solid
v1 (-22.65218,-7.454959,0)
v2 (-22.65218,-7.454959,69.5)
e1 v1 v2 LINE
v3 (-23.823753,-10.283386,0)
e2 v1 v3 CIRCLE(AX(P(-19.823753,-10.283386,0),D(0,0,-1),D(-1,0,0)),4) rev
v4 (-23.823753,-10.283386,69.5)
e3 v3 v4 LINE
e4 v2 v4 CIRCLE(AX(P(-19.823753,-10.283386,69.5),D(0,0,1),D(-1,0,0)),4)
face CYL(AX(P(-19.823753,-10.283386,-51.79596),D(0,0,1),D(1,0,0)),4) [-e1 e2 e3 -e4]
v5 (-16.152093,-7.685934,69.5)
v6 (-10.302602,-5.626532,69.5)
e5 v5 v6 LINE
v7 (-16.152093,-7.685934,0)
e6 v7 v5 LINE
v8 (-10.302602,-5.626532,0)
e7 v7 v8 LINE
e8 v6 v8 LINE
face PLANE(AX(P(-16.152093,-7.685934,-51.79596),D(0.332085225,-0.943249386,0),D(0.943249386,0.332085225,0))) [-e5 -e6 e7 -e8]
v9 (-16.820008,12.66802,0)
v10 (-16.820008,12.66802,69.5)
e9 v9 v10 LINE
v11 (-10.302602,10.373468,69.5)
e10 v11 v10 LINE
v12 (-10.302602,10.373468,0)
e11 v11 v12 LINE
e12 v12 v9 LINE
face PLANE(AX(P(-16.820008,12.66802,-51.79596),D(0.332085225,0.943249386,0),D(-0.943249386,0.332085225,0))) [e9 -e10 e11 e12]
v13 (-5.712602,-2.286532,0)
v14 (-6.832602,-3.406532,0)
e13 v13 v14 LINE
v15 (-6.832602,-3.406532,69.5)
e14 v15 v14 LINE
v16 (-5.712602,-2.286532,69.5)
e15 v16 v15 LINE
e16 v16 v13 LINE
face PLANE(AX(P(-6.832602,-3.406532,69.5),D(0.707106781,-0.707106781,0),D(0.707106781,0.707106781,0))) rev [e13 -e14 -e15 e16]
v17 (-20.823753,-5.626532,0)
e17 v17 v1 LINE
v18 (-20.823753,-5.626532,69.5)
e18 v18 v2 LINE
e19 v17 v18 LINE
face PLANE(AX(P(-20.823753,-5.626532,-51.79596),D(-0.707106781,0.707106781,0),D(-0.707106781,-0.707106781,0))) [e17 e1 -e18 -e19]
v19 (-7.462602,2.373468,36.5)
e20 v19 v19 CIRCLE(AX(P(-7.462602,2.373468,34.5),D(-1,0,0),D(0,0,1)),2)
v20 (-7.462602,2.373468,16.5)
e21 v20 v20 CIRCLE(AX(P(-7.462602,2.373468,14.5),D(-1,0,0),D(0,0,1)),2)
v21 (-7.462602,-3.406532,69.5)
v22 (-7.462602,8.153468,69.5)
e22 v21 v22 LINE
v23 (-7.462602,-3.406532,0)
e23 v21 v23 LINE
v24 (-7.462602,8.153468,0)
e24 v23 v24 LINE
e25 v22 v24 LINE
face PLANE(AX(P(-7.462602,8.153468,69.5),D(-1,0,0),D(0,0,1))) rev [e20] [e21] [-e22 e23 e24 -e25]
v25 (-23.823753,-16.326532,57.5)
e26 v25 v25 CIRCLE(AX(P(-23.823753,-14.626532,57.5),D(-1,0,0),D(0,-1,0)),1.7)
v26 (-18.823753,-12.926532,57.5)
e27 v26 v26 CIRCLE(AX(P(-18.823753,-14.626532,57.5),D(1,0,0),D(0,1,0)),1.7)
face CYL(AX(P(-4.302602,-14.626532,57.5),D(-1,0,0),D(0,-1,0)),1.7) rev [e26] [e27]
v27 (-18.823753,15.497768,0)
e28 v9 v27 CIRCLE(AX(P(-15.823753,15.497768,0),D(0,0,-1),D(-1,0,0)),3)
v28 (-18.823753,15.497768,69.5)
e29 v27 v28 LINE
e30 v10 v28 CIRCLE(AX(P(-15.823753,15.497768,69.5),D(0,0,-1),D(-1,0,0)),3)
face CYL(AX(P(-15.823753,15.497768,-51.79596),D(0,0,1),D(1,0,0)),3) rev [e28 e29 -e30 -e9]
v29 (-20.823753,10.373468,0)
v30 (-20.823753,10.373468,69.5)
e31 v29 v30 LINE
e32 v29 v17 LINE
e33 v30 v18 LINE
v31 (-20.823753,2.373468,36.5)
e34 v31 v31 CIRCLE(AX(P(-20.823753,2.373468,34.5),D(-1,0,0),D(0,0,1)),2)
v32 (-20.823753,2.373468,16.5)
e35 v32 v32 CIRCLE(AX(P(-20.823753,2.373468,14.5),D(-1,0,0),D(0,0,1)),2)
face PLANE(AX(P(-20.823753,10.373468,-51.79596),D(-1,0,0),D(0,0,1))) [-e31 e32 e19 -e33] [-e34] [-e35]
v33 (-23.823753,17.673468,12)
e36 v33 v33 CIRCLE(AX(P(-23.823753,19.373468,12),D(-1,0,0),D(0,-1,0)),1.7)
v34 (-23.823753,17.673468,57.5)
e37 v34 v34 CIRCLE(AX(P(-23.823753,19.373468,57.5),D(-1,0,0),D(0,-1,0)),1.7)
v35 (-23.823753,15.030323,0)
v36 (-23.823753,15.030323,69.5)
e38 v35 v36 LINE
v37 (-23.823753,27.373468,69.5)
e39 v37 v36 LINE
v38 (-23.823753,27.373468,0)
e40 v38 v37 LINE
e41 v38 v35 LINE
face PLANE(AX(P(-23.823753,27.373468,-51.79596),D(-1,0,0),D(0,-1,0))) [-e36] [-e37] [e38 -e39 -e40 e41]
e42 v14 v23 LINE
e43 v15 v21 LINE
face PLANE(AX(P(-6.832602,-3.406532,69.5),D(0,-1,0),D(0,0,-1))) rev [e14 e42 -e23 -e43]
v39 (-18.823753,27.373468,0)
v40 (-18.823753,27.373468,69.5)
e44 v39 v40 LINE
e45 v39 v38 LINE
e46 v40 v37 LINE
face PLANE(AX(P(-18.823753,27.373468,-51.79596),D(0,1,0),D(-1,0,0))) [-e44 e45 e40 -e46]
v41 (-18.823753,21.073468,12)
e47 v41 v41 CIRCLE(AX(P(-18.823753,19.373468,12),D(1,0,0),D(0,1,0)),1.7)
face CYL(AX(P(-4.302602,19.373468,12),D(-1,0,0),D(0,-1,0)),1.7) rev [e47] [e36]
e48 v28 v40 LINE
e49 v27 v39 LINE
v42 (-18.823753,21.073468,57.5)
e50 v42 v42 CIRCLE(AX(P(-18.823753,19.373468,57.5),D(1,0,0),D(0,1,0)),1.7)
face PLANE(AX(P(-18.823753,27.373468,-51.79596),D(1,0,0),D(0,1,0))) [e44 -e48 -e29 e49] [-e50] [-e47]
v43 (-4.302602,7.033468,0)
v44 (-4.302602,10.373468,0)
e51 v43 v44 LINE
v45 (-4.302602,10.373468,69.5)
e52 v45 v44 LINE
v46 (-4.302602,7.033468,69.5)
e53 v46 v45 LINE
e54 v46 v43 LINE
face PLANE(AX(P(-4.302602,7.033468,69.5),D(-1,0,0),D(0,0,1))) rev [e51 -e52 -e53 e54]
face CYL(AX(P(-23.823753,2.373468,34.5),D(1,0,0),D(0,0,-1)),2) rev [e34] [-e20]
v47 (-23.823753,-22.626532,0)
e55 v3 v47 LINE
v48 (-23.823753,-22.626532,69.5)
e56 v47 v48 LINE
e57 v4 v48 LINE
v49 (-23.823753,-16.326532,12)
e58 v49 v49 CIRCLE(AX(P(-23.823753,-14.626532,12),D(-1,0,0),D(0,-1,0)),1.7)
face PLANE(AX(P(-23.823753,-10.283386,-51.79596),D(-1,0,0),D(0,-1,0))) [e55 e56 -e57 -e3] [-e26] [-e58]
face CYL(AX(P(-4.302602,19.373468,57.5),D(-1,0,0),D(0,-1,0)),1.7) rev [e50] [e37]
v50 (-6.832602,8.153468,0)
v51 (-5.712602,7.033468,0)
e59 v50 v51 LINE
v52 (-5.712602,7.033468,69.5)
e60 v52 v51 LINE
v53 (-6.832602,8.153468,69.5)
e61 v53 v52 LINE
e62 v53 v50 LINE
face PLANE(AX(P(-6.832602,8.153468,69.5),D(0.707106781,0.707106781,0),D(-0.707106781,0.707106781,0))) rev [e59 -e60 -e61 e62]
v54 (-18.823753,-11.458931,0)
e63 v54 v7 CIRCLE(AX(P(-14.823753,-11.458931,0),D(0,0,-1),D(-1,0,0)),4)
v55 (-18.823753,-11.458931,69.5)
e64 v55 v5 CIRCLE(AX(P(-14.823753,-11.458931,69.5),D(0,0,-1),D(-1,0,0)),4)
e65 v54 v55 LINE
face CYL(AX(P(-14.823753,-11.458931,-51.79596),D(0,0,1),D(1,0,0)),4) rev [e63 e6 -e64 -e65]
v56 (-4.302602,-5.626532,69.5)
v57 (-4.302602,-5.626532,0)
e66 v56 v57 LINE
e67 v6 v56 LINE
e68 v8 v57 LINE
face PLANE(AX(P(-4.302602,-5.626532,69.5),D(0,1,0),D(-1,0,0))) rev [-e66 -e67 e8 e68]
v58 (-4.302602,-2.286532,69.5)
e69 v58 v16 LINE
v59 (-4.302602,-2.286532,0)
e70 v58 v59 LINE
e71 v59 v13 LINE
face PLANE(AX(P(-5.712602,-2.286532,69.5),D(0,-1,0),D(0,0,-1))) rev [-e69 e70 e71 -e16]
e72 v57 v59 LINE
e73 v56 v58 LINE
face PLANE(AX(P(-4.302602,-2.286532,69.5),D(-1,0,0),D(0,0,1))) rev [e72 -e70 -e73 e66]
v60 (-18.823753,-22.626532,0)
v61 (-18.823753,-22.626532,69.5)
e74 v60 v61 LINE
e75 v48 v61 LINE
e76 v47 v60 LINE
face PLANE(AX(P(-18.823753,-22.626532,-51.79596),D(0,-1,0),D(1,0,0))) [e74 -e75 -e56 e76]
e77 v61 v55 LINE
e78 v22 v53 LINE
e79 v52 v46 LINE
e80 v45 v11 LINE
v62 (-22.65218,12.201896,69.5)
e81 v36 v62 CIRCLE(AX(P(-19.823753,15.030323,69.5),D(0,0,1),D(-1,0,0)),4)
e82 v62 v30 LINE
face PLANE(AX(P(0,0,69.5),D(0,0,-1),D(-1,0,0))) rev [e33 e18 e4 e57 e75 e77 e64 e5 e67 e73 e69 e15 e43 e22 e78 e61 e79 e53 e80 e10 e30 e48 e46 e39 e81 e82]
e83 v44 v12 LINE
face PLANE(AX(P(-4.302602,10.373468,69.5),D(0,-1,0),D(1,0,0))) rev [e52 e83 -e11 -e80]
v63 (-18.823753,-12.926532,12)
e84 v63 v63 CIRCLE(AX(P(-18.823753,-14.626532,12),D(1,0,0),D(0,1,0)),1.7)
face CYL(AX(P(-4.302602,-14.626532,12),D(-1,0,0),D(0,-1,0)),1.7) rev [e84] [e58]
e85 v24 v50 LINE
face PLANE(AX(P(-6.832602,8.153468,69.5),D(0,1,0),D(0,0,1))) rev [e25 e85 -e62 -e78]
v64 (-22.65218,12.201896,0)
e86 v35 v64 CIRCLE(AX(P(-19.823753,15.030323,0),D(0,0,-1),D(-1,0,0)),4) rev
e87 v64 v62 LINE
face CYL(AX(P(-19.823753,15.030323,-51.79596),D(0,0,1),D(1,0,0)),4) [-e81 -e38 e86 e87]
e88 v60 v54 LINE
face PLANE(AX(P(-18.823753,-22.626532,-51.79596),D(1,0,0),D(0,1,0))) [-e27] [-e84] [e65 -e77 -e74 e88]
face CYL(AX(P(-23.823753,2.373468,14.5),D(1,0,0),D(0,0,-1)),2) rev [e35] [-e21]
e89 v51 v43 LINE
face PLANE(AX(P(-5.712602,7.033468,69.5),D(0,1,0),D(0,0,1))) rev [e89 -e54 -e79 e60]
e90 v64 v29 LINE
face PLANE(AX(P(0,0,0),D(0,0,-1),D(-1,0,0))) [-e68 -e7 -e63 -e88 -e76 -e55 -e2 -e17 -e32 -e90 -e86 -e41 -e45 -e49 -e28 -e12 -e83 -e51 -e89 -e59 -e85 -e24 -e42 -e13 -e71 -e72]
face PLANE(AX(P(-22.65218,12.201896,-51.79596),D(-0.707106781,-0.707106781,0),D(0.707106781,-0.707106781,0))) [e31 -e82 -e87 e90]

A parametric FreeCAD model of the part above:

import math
import FreeCAD as App
import Part
import Sketcher

V = App.Vector
Q = App.Units.Quantity


def add_polygon(sketch, points):
    """Adds a closed chain of lines whose ends are joined by coincident constraints."""
    first, n = sketch.GeometryCount, len(points)
    for a, b in zip(points, points[1:] + points[:1]):
        sketch.addGeometry(Part.LineSegment(App.Vector(*a, 0), App.Vector(*b, 0)), False)
    for i in range(n):
        sketch.addConstraint(Sketcher.Constraint("Coincident", first + i, 2, first + (i + 1) % n, 1))

doc = App.newDocument("Part")
body = doc.addObject("PartDesign::Body", "Body")

# Sketch on XY plane
sketch1 = body.newObject("Sketcher::SketchObject", "Sketch")
sketch1.AttachmentSupport = (doc.getObject("XY_Plane"), [""])
sketch1.MapMode = "FlatFace"
add_polygon(sketch1, [(-4.302602, 10.373468), (-10.302602, 10.373468), (-10.302602, -5.626532), (-4.302602, -5.626532), (-4.302602, -2.286532), (-5.712602, -2.286532), (-6.832602, -3.406532), (-7.462602, -3.406532), (-7.462602, 8.153468), (-6.832602, 8.153468), (-5.712602, 7.033468), (-4.302602, 7.033468)])  # lines 0-11
sketch1.addConstraint([
    Sketcher.Constraint("Horizontal", 0),
    Sketcher.Constraint("Vertical", 1),
    Sketcher.Constraint("Horizontal", 2),
    Sketcher.Constraint("Vertical", 3),
    Sketcher.Constraint("Horizontal", 4),
    Sketcher.Constraint("Horizontal", 6),
    Sketcher.Constraint("Vertical", 7),
    Sketcher.Constraint("Horizontal", 8),
    Sketcher.Constraint("Horizontal", 10),
    Sketcher.Constraint("Vertical", 11),
    Sketcher.Constraint("Perpendicular", 5, 9),
    Sketcher.Constraint("Vertical", 5, 2, 8, 2),
    Sketcher.Constraint("Vertical", 4, 2, 9, 2),
    Sketcher.Constraint("Vertical", 3, 2, 10, 2),
    Sketcher.Constraint("Equal", 3, 11),
    Sketcher.Constraint("Equal", 5, 9),
    Sketcher.Constraint("DistanceX", 0, 2, 0, 1, Q("6 mm")),
    Sketcher.Constraint("DistanceY", 1, 2, 1, 1, Q("16 mm")),
    Sketcher.Constraint("DistanceX", 4, 2, 4, 1, Q("1.41 mm")),
    Sketcher.Constraint("DistanceX", 6, 2, 6, 1, Q("0.63 mm")),
    Sketcher.Constraint("DistanceY", 3, 1, 3, 2, Q("3.34 mm")),
    Sketcher.Constraint("DistanceY", 7, 1, 7, 2, Q("11.56 mm")),
    Sketcher.Constraint("DistanceY", -1, 1, 0, 2, Q("10.373468 mm")),
    Sketcher.Constraint("DistanceX", 0, 2, -1, 1, Q("10.302602 mm")),
])
pad1 = body.newObject("PartDesign::Pad", "Pad")
pad1.Profile = sketch1
pad1.Length = 69.5

# Sketch on XY plane
sketch2 = body.newObject("Sketcher::SketchObject", "Sketch001")
sketch2.AttachmentSupport = (doc.getObject("XY_Plane"), [""])
sketch2.MapMode = "FlatFace"
sketch2.AttachmentOffset = App.Placement(V(0, 0, 69.5), App.Rotation())
sketch2.addGeometry([
    Part.LineSegment(V(-18.823753, 27.373468, 0), V(-23.823753, 27.373468, 0)),  # 0
    Part.LineSegment(V(-23.823753, 27.373468, 0), V(-23.823753, 15.030323, 0)),  # 1
    Part.ArcOfCircle(Part.Circle(V(-19.823753, 15.030323, 0), V(0, 0, 1), 4), math.radians(-180), math.radians(-135)),  # 2
    Part.LineSegment(V(-22.65218, 12.201896, 0), V(-20.823753, 10.373468, 0)),  # 3
    Part.LineSegment(V(-20.823753, 10.373468, 0), V(-20.823753, -5.626532, 0)),  # 4
    Part.LineSegment(V(-20.823753, -5.626532, 0), V(-22.65218, -7.454959, 0)),  # 5
    Part.ArcOfCircle(Part.Circle(V(-19.823753, -10.283386, 0), V(0, 0, 1), 4), math.radians(135), math.radians(180)),  # 6
    Part.LineSegment(V(-23.823753, -10.283386, 0), V(-23.823753, -22.626532, 0)),  # 7
    Part.LineSegment(V(-23.823753, -22.626532, 0), V(-18.823753, -22.626532, 0)),  # 8
    Part.LineSegment(V(-18.823753, -22.626532, 0), V(-18.823753, -11.458931, 0)),  # 9
    Part.ArcOfCircle(Part.Circle(V(-14.823753, -11.458931, 0), V(0, 0, 1), 4), math.radians(109.395389), math.radians(180)),  # 10
    Part.LineSegment(V(-16.152093, -7.685934, 0), V(-10.302602, -5.626532, 0)),  # 11
    Part.LineSegment(V(-10.302602, -5.626532, 0), V(-10.302602, 10.373468, 0)),  # 12
    Part.LineSegment(V(-10.302602, 10.373468, 0), V(-16.820008, 12.66802, 0)),  # 13
    Part.ArcOfCircle(Part.Circle(V(-15.823753, 15.497768, 0), V(0, 0, 1), 3), math.radians(180), math.radians(250.604611)),  # 14
    Part.LineSegment(V(-18.823753, 15.497768, 0), V(-18.823753, 27.373468, 0)),  # 15
], False)
sketch2.addConstraint([
    Sketcher.Constraint("Coincident", 0, 2, 1, 1),
    Sketcher.Constraint("Tangent", 1, 2, 2, 1),
    Sketcher.Constraint("Tangent", 2, 2, 3, 1),
    Sketcher.Constraint("Coincident", 3, 2, 4, 1),
    Sketcher.Constraint("Coincident", 4, 2, 5, 1),
    Sketcher.Constraint("Tangent", 5, 2, 6, 1),
    Sketcher.Constraint("Tangent", 6, 2, 7, 1),
    Sketcher.Constraint("Coincident", 7, 2, 8, 1),
    Sketcher.Constraint("Coincident", 8, 2, 9, 1),
    Sketcher.Constraint("Tangent", 9, 2, 10, 2),
    Sketcher.Constraint("Tangent", 10, 1, 11, 1),
    Sketcher.Constraint("Coincident", 11, 2, 12, 1),
    Sketcher.Constraint("Coincident", 12, 2, 13, 1),
    Sketcher.Constraint("Tangent", 13, 2, 14, 2),
    Sketcher.Constraint("Tangent", 14, 1, 15, 1),
    Sketcher.Constraint("Coincident", 15, 2, 0, 1),
    Sketcher.Constraint("Horizontal", 0),
    Sketcher.Constraint("Vertical", 1),
    Sketcher.Constraint("Vertical", 4),
    Sketcher.Constraint("Vertical", 7),
    Sketcher.Constraint("Horizontal", 8),
    Sketcher.Constraint("Vertical", 9),
    Sketcher.Constraint("Vertical", 12),
    Sketcher.Constraint("Vertical", 15),
    Sketcher.Constraint("Equal", 2, 6),
    Sketcher.Constraint("Equal", 6, 10),
    Sketcher.Constraint("Perpendicular", 3, 5),
    Sketcher.Constraint("Horizontal", 4, 2, 11, 2),
    Sketcher.Constraint("Horizontal", 3, 2, 12, 2),
    Sketcher.Constraint("Vertical", 2, 3, 6, 3),
    Sketcher.Constraint("Vertical", 2, 2, 5, 2),
    Sketcher.Constraint("Vertical", 9, 2, 14, 1),
    Sketcher.Constraint("Equal", 1, 7),
    Sketcher.Constraint("Radius", 2, Q("4 mm")),
    Sketcher.Constraint("Radius", 14, Q("3 mm")),
    Sketcher.Constraint("DistanceX", 0, 2, 0, 1, Q("5 mm")),
    Sketcher.Constraint("DistanceY", 4, 2, 4, 1, Q("16 mm")),
    Sketcher.Constraint("DistanceX", 3, 2, 2, 3, Q("1 mm")),
    Sketcher.Constraint("DistanceY", 3, 2, 0, 2, Q("17 mm")),
    Sketcher.Constraint("DistanceY", 9, 1, 9, 2, Q("11.1676 mm")),
    Sketcher.Constraint("DistanceY", 15, 1, 15, 2, Q("11.8757 mm")),
    Sketcher.Constraint("DistanceY", 10, 1, 4, 2, Q("2.059402 mm")),
    Sketcher.Constraint("DistanceY", 10, 3, -1, 1, Q("11.458931 mm")),
    Sketcher.Constraint("DistanceX", 2, 2, -1, 1, Q("22.65218 mm")),
])
pad2 = body.newObject("PartDesign::Pad", "Pad001")
pad2.Profile = sketch2
pad2.Length = 69.5
pad2.Reversed = True

# Sketch on YZ plane
sketch3 = body.newObject("Sketcher::SketchObject", "Sketch002")
sketch3.AttachmentSupport = (doc.getObject("YZ_Plane"), [""])
sketch3.MapMode = "FlatFace"
sketch3.AttachmentOffset = App.Placement(V(0, 0, -7.462602), App.Rotation())
sketch3.addGeometry([
    Part.Circle(V(2.373468, 34.5, 0), V(0, 0, 1), 2),
    Part.Circle(V(2.373468, 14.5, 0), V(0, 0, 1), 2),
], False)
sketch3.addConstraint([
    Sketcher.Constraint("Equal", 0, 1),
    Sketcher.Constraint("Vertical", 0, 3, 1, 3),
    Sketcher.Constraint("Diameter", 0, Q("4 mm")),
    Sketcher.Constraint("DistanceY", 1, 3, 0, 3, Q("20 mm")),
    Sketcher.Constraint("DistanceY", -1, 1, 0, 3, Q("34.5 mm")),
    Sketcher.Constraint("DistanceX", -1, 1, 0, 3, Q("2.373468 mm")),
])
pocket1 = body.newObject("PartDesign::Pocket", "Pocket")
pocket1.Profile = sketch3
pocket1.Type = "ThroughAll"
pocket1.Midplane = True

# Sketch on YZ plane
sketch4 = body.newObject("Sketcher::SketchObject", "Sketch003")
sketch4.AttachmentSupport = (doc.getObject("YZ_Plane"), [""])
sketch4.MapMode = "FlatFace"
sketch4.AttachmentOffset = App.Placement(V(0, 0, -23.823753), App.Rotation())
sketch4.addGeometry([
    Part.Circle(V(19.373468, 12, 0), V(0, 0, 1), 1.7),
    Part.Circle(V(19.373468, 57.5, 0), V(0, 0, 1), 1.7),
    Part.Circle(V(-14.626532, 57.5, 0), V(0, 0, 1), 1.7),
    Part.Circle(V(-14.626532, 12, 0), V(0, 0, 1), 1.7),
], False)
sketch4.addConstraint([
    Sketcher.Constraint("Equal", 0, 1),
    Sketcher.Constraint("Equal", 1, 2),
    Sketcher.Constraint("Equal", 2, 3),
    Sketcher.Constraint("Horizontal", 1, 3, 2, 3),
    Sketcher.Constraint("Horizontal", 0, 3, 3, 3),
    Sketcher.Constraint("Vertical", 0, 3, 1, 3),
    Sketcher.Constraint("Vertical", 2, 3, 3, 3),
    Sketcher.Constraint("Diameter", 0, Q("3.4 mm")),
    Sketcher.Constraint("DistanceY", -1, 1, 0, 3, Q("12 mm")),
    Sketcher.Constraint("DistanceX", 2, 3, 1, 3, Q("34 mm")),
    Sketcher.Constraint("DistanceY", -1, 1, 1, 3, Q("57.5 mm")),
    Sketcher.Constraint("DistanceX", -1, 1, 0, 3, Q("19.373468 mm")),
])
pocket2 = body.newObject("PartDesign::Pocket", "Pocket001")
pocket2.Profile = sketch4
pocket2.Type = "ThroughAll"
pocket2.Midplane = True

doc.recompute()
